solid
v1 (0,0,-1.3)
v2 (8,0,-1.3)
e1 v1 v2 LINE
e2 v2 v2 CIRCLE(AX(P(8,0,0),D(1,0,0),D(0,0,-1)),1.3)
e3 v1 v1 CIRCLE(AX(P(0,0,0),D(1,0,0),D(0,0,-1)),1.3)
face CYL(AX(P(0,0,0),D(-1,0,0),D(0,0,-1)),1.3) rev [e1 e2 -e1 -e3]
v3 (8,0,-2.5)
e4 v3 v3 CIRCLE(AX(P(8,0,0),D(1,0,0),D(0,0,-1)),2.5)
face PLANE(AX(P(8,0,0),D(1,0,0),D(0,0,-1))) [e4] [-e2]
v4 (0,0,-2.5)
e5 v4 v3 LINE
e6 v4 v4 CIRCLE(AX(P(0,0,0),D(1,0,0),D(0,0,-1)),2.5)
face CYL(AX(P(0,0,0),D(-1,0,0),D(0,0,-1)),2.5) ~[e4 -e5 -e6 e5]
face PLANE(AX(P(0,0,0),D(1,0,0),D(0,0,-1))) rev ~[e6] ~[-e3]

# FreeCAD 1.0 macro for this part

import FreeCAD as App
import Part
import Sketcher

doc = App.newDocument("Part")
body = doc.addObject("PartDesign::Body", "Body")

# Sketch on YZ plane
sketch1 = body.newObject("Sketcher::SketchObject", "Sketch")
sketch1.AttachmentSupport = (doc.getObject("YZ_Plane"), [""])
sketch1.MapMode = "FlatFace"
sketch1.addGeometry([
    Part.Circle(App.Vector(0, 0, 0), App.Vector(0, 0, 1), 2.5),
    Part.Circle(App.Vector(0, 0, 0), App.Vector(0, 0, 1), 1.3),
], False)
sketch1.addConstraint([
    Sketcher.Constraint("Coincident", 0, 3, -1, 1),
    Sketcher.Constraint("Coincident", 1, 3, -1, 1),
    Sketcher.Constraint("Diameter", 0, 5.0),
    Sketcher.Constraint("Diameter", 1, 2.6),
])
pad1 = body.newObject("PartDesign::Pad", "Pad")
pad1.Profile = sketch1
pad1.Length = 8

doc.recompute()
